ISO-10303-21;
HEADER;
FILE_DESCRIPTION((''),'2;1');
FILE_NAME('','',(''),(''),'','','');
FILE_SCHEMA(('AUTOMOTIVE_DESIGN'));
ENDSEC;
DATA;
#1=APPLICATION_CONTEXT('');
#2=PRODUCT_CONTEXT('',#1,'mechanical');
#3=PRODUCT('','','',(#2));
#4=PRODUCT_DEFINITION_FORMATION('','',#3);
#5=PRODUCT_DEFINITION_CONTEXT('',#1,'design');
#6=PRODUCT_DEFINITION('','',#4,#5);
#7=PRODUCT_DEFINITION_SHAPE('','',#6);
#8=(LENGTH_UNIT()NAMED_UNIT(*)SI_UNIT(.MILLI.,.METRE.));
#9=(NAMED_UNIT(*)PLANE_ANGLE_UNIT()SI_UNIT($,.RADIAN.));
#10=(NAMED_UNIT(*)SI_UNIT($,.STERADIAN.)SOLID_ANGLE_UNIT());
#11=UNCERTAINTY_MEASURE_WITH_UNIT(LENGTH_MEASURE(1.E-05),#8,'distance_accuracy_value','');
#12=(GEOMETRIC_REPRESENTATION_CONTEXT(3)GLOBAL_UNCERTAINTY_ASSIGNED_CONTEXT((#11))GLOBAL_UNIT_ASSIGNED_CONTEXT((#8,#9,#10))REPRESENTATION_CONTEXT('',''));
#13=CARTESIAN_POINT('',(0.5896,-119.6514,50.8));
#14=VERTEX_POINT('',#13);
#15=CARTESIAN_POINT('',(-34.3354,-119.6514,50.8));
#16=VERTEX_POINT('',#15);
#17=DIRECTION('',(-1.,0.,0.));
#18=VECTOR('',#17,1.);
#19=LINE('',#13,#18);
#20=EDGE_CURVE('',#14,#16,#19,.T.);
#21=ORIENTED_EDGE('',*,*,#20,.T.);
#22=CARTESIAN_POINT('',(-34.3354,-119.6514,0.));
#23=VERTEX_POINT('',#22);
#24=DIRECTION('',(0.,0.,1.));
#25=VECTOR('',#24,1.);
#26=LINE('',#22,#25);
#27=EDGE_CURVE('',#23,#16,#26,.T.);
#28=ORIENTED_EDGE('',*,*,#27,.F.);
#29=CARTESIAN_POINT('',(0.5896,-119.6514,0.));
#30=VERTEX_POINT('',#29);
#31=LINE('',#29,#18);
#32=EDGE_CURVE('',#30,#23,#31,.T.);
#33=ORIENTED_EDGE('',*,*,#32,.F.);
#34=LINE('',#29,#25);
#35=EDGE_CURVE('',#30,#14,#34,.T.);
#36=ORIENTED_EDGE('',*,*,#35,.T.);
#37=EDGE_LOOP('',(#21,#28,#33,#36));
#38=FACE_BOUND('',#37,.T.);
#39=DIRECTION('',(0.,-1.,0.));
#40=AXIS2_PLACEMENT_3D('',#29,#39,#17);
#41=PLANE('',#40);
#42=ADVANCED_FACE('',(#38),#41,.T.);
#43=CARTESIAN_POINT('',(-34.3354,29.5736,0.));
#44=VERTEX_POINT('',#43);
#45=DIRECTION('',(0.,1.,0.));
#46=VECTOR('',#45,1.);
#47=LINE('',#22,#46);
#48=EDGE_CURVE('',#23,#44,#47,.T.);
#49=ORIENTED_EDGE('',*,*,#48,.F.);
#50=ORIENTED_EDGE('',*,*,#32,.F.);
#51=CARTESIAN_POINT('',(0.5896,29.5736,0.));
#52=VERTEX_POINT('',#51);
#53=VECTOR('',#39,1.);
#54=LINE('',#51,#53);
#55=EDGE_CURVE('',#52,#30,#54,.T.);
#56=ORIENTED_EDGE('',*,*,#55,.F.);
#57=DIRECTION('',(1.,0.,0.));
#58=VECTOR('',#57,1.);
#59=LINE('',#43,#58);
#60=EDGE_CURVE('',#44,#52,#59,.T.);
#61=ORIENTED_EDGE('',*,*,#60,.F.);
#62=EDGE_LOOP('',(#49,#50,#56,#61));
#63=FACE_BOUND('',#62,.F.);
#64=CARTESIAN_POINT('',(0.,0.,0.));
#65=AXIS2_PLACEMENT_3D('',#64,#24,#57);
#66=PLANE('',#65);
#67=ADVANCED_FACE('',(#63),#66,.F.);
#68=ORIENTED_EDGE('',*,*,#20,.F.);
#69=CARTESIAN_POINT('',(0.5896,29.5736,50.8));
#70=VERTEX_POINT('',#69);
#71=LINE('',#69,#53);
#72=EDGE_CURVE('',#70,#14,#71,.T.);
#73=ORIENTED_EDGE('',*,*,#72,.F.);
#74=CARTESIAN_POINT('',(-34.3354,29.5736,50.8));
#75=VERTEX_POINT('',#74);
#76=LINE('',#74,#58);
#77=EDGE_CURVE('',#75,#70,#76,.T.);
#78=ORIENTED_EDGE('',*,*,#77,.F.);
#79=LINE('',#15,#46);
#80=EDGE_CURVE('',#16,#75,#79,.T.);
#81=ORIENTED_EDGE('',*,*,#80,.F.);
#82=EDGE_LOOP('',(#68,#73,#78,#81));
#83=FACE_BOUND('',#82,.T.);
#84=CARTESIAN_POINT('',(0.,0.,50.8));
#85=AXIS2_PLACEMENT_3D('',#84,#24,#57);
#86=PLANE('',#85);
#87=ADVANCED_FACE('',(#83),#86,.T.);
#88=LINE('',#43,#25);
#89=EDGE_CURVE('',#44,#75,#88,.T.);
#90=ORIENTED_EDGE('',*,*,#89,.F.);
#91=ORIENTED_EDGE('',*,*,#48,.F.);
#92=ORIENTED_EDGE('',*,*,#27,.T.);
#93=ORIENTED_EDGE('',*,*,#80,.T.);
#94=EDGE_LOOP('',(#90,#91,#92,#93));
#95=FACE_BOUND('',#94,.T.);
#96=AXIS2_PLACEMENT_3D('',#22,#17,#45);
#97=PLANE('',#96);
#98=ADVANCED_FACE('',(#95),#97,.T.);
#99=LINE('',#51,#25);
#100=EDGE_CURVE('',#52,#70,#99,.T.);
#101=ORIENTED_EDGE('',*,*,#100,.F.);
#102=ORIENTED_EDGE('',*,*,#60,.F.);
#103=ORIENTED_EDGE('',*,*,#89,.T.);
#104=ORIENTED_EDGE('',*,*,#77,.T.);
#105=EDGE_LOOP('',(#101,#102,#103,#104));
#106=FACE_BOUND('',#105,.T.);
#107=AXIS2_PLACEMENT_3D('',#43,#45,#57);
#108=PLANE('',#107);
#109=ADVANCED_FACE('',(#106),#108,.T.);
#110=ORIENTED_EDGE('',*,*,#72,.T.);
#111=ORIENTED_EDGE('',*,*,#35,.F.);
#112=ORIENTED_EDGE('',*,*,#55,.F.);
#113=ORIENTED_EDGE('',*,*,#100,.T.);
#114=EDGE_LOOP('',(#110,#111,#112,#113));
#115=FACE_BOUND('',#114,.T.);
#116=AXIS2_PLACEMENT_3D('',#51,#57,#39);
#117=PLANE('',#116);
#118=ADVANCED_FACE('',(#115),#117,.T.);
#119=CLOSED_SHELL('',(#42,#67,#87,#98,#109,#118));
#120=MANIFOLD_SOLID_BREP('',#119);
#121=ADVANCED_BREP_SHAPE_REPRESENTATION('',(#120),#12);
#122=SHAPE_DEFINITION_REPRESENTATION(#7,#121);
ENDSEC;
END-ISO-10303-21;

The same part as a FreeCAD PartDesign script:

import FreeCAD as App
import Part
import Sketcher

V = App.Vector
Q = App.Units.Quantity

doc = App.newDocument("Part")
body = doc.addObject("PartDesign::Body", "Body")

sketch1 = body.newObject("Sketcher::SketchObject", "Sketch")
sketch1.AttachmentSupport = (doc.getObject("XY_Plane"), [""])
sketch1.MapMode = "FlatFace"
sketch1.addGeometry(Part.LineSegment(V(1, 30, 0), V(-34, 30, 0)), False)
sketch1.addGeometry(Part.LineSegment(V(-34, 30, 0), V(-34, -120, 0)), False)
sketch1.addGeometry(Part.LineSegment(V(-34, -120, 0), V(1, -120, 0)), False)
sketch1.addGeometry(Part.LineSegment(V(1, -120, 0), V(1, 30, 0)), False)
sketch1.addConstraint(Sketcher.Constraint("Coincident", 0, 2, 1, 1))
sketch1.addConstraint(Sketcher.Constraint("Coincident", 1, 2, 2, 1))
sketch1.addConstraint(Sketcher.Constraint("Coincident", 2, 2, 3, 1))
sketch1.addConstraint(Sketcher.Constraint("Coincident", 3, 2, 0, 1))
sketch1.addConstraint(Sketcher.Constraint("Horizontal", 0))
sketch1.addConstraint(Sketcher.Constraint("Vertical", 1))
sketch1.addConstraint(Sketcher.Constraint("Horizontal", 2))
sketch1.addConstraint(Sketcher.Constraint("Vertical", 3))
sketch1.addConstraint(Sketcher.Constraint("DistanceX", 0, 2, 0, 1, Q("1.375 in")))
sketch1.addConstraint(Sketcher.Constraint("DistanceY", 1, 2, 1, 1, Q("5.875 in")))
sketch1.addConstraint(Sketcher.Constraint("DistanceX", 0, 2, -1, 1, Q("34.3354 mm")))
sketch1.addConstraint(Sketcher.Constraint("DistanceY", -1, 1, 0, 2, Q("29.5736 mm")))
pad1 = body.newObject("PartDesign::Pad", "Pad")
pad1.Profile = sketch1
pad1.Length = Q("2 in")

doc.recompute()
